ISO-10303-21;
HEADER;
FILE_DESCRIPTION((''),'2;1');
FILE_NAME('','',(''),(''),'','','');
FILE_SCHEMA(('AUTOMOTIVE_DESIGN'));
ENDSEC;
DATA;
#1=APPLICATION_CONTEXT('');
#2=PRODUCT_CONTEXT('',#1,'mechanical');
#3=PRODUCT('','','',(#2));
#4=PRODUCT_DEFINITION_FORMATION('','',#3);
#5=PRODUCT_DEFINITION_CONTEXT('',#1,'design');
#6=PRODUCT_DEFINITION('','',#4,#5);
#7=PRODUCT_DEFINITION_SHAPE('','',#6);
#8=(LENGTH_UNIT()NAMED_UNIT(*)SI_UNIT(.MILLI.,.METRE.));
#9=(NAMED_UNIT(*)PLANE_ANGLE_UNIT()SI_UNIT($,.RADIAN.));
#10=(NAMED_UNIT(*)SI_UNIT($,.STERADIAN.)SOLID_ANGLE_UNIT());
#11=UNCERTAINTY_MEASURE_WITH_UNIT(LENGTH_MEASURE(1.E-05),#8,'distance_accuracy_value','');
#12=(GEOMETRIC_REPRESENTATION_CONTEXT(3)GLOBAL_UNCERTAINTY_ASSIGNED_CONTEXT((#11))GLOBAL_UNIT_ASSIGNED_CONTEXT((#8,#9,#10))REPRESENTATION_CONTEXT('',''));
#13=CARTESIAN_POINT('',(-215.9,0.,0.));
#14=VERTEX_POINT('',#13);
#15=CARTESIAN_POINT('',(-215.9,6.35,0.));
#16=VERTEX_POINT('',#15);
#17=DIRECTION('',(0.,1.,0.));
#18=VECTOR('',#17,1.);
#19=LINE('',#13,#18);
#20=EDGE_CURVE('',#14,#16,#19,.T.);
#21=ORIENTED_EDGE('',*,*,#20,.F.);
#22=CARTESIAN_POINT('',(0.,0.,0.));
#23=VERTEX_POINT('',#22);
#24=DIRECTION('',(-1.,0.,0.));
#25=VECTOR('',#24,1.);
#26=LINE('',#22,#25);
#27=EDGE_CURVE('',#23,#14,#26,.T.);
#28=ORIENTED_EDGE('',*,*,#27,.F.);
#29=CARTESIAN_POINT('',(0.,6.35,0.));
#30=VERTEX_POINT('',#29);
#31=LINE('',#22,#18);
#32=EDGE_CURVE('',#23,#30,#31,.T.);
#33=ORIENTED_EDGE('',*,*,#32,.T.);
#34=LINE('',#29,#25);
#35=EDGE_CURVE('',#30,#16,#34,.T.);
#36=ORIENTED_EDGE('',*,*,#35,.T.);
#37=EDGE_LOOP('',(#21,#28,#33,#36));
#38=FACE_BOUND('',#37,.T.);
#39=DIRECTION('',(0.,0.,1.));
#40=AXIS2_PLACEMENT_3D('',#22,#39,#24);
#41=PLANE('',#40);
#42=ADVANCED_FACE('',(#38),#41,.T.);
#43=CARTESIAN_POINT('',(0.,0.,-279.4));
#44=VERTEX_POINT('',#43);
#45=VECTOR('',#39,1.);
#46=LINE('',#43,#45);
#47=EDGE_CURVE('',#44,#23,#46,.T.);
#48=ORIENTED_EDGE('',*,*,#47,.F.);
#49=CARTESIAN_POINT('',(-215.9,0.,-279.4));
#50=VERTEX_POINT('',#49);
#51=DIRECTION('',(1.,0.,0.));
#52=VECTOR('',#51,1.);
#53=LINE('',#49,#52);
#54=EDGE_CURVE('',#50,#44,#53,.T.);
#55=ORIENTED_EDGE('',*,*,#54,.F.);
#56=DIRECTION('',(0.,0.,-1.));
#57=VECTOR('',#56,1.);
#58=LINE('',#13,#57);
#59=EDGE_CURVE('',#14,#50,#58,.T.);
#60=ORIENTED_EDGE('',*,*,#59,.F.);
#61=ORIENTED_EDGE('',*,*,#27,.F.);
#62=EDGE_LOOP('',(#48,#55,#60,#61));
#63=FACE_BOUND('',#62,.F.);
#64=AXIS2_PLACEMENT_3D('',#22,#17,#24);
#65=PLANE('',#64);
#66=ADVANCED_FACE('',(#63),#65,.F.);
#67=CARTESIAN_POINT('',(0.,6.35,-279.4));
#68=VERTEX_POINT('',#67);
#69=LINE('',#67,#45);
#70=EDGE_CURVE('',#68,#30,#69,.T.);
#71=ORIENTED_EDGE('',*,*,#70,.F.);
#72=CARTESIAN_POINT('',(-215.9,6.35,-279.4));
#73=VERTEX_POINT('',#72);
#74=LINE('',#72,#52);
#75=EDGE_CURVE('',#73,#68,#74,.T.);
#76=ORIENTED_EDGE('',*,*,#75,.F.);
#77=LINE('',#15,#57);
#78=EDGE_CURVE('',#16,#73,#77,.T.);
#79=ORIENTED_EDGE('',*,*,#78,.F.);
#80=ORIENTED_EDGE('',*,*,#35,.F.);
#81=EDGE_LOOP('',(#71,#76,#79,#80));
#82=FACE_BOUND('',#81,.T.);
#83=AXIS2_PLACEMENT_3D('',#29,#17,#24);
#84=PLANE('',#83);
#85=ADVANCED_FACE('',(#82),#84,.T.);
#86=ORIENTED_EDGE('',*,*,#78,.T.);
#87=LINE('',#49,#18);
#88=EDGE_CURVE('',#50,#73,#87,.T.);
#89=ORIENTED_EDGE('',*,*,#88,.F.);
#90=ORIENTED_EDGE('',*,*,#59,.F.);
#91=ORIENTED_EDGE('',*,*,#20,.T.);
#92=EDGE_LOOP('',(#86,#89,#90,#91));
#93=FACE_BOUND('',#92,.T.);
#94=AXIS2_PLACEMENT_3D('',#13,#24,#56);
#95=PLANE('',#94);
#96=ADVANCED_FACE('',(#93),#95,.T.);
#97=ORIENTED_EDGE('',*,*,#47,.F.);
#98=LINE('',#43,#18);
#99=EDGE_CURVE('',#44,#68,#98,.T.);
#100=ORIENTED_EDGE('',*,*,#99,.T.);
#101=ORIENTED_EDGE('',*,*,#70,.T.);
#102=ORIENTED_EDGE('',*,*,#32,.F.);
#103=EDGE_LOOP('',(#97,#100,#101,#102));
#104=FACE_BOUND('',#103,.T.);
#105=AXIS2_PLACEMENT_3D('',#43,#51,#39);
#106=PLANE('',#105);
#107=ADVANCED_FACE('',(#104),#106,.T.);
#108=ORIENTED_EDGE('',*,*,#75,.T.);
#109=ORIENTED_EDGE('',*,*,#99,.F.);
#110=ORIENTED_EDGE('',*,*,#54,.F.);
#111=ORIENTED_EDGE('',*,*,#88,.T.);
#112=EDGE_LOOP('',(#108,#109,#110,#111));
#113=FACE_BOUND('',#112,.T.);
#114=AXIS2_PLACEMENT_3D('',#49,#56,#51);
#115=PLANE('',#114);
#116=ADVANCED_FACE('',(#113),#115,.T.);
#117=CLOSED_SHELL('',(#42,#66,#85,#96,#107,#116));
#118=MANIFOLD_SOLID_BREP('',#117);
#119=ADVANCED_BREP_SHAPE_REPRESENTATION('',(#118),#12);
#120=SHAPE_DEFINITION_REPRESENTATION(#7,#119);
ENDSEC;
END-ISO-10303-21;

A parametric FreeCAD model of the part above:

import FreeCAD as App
import Part
import Sketcher

V = App.Vector
Q = App.Units.Quantity


def add_polygon(sketch, points):
    """Adds a closed chain of lines whose ends are joined by coincident constraints."""
    first, n = sketch.GeometryCount, len(points)
    for a, b in zip(points, points[1:] + points[:1]):
        sketch.addGeometry(Part.LineSegment(App.Vector(*a, 0), App.Vector(*b, 0)), False)
    for i in range(n):
        sketch.addConstraint(Sketcher.Constraint("Coincident", first + i, 2, first + (i + 1) % n, 1))

doc = App.newDocument("Part")
body = doc.addObject("PartDesign::Body", "Body")

sketch1 = body.newObject("Sketcher::SketchObject", "Sketch")
sketch1.AttachmentSupport = (doc.getObject("XZ_Plane"), [""])
sketch1.MapMode = "FlatFace"
add_polygon(sketch1, [(-215.9, 0), (0, 0), (0, -279.4), (-215.9, -279.4)])
sketch1.addConstraint([
    Sketcher.Constraint("Horizontal", 0),
    Sketcher.Constraint("Vertical", 1),
    Sketcher.Constraint("Horizontal", 2),
    Sketcher.Constraint("Vertical", 3),
    Sketcher.Constraint("Coincident", 0, 2, -1, 1),
    Sketcher.Constraint("DistanceY", 1, 2, 1, 1, Q("11 in")),
    Sketcher.Constraint("DistanceX", 0, 1, 0, 2, Q("8.5 in")),
])
pad1 = body.newObject("PartDesign::Pad", "Pad")
pad1.Profile = sketch1
pad1.Length = Q("0.25 in")
pad1.Reversed = True

doc.recompute()
